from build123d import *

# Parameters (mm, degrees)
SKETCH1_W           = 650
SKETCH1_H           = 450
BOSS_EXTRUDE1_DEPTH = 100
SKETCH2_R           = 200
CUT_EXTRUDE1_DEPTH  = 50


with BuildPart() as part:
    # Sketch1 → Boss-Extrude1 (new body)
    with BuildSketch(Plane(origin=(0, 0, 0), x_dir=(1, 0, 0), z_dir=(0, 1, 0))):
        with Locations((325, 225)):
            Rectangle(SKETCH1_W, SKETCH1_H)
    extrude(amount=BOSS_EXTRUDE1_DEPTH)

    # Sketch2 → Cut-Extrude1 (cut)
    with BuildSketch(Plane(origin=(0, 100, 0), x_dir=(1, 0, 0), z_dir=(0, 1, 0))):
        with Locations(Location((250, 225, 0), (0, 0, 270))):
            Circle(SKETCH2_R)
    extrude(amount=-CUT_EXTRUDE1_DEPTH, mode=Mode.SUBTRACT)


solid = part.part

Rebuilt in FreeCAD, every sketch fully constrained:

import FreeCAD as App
import Part
import Sketcher

V = App.Vector


def add_polygon(sketch, points):
    """Adds a closed chain of lines whose ends are joined by coincident constraints."""
    first, n = sketch.GeometryCount, len(points)
    for a, b in zip(points, points[1:] + points[:1]):
        sketch.addGeometry(Part.LineSegment(App.Vector(*a, 0), App.Vector(*b, 0)), False)
    for i in range(n):
        sketch.addConstraint(Sketcher.Constraint("Coincident", first + i, 2, first + (i + 1) % n, 1))

doc = App.newDocument("Part")
params = doc.addObject("Spreadsheet::Sheet", "Params")
for row, (alias, value) in enumerate([
    ("sketch1_width", "650 mm"),
    ("sketch1_height", "450 mm"),
    ("pad1_length", "100 mm"),
    ("sketch2_diameter", "400 mm"),
    ("pocket1_length", "50 mm"),
], start=1):
    params.set(f"A{row}", alias)
    params.set(f"B{row}", "=" + value)
    params.setAlias(f"B{row}", alias)

body = doc.addObject("PartDesign::Body", "Body")

# Sketch on XZ plane
sketch1 = body.newObject("Sketcher::SketchObject", "Sketch")
sketch1.AttachmentSupport = (doc.getObject("XZ_Plane"), [""])
sketch1.MapMode = "FlatFace"
add_polygon(sketch1, [(0, -450), (0, 0), (650, 0), (650, -450)])  # lines 0-3
sketch1.addConstraint([
    Sketcher.Constraint("Vertical", 0),
    Sketcher.Constraint("Horizontal", 1),
    Sketcher.Constraint("Vertical", 2),
    Sketcher.Constraint("Horizontal", 3),
    Sketcher.Constraint("Coincident", 0, 2, -1, 1),
    Sketcher.Constraint("DistanceX", 1, 1, 1, 2, 650.0),
    Sketcher.Constraint("DistanceY", 0, 1, 0, 2, 450.0),
])
sketch1.setExpression("Constraints[9]", "Params.sketch1_width")
sketch1.setExpression("Constraints[10]", "Params.sketch1_height")
pad1 = body.newObject("PartDesign::Pad", "Pad")
pad1.Profile = sketch1
pad1.setExpression("Length", "Params.pad1_length")
pad1.Reversed = True

# Sketch on XZ plane
sketch2 = body.newObject("Sketcher::SketchObject", "Sketch001")
sketch2.AttachmentSupport = (doc.getObject("XZ_Plane"), [""])
sketch2.MapMode = "FlatFace"
sketch2.AttachmentOffset = App.Placement(V(0, 0, -100), App.Rotation())
sketch2.addGeometry(Part.Circle(V(250, -225, 0), V(0, 0, 1), 200), False)
sketch2.addConstraint([
    Sketcher.Constraint("Diameter", 0, 400.0),
    Sketcher.Constraint("DistanceX", -1, 1, 0, 3, 250.0),
    Sketcher.Constraint("DistanceY", 0, 3, -1, 1, 225.0),
])
sketch2.setExpression("Constraints[0]", "Params.sketch2_diameter")
pocket1 = body.newObject("PartDesign::Pocket", "Pocket")
pocket1.Profile = sketch2
pocket1.setExpression("Length", "Params.pocket1_length")
pocket1.Reversed = True

doc.recompute()
